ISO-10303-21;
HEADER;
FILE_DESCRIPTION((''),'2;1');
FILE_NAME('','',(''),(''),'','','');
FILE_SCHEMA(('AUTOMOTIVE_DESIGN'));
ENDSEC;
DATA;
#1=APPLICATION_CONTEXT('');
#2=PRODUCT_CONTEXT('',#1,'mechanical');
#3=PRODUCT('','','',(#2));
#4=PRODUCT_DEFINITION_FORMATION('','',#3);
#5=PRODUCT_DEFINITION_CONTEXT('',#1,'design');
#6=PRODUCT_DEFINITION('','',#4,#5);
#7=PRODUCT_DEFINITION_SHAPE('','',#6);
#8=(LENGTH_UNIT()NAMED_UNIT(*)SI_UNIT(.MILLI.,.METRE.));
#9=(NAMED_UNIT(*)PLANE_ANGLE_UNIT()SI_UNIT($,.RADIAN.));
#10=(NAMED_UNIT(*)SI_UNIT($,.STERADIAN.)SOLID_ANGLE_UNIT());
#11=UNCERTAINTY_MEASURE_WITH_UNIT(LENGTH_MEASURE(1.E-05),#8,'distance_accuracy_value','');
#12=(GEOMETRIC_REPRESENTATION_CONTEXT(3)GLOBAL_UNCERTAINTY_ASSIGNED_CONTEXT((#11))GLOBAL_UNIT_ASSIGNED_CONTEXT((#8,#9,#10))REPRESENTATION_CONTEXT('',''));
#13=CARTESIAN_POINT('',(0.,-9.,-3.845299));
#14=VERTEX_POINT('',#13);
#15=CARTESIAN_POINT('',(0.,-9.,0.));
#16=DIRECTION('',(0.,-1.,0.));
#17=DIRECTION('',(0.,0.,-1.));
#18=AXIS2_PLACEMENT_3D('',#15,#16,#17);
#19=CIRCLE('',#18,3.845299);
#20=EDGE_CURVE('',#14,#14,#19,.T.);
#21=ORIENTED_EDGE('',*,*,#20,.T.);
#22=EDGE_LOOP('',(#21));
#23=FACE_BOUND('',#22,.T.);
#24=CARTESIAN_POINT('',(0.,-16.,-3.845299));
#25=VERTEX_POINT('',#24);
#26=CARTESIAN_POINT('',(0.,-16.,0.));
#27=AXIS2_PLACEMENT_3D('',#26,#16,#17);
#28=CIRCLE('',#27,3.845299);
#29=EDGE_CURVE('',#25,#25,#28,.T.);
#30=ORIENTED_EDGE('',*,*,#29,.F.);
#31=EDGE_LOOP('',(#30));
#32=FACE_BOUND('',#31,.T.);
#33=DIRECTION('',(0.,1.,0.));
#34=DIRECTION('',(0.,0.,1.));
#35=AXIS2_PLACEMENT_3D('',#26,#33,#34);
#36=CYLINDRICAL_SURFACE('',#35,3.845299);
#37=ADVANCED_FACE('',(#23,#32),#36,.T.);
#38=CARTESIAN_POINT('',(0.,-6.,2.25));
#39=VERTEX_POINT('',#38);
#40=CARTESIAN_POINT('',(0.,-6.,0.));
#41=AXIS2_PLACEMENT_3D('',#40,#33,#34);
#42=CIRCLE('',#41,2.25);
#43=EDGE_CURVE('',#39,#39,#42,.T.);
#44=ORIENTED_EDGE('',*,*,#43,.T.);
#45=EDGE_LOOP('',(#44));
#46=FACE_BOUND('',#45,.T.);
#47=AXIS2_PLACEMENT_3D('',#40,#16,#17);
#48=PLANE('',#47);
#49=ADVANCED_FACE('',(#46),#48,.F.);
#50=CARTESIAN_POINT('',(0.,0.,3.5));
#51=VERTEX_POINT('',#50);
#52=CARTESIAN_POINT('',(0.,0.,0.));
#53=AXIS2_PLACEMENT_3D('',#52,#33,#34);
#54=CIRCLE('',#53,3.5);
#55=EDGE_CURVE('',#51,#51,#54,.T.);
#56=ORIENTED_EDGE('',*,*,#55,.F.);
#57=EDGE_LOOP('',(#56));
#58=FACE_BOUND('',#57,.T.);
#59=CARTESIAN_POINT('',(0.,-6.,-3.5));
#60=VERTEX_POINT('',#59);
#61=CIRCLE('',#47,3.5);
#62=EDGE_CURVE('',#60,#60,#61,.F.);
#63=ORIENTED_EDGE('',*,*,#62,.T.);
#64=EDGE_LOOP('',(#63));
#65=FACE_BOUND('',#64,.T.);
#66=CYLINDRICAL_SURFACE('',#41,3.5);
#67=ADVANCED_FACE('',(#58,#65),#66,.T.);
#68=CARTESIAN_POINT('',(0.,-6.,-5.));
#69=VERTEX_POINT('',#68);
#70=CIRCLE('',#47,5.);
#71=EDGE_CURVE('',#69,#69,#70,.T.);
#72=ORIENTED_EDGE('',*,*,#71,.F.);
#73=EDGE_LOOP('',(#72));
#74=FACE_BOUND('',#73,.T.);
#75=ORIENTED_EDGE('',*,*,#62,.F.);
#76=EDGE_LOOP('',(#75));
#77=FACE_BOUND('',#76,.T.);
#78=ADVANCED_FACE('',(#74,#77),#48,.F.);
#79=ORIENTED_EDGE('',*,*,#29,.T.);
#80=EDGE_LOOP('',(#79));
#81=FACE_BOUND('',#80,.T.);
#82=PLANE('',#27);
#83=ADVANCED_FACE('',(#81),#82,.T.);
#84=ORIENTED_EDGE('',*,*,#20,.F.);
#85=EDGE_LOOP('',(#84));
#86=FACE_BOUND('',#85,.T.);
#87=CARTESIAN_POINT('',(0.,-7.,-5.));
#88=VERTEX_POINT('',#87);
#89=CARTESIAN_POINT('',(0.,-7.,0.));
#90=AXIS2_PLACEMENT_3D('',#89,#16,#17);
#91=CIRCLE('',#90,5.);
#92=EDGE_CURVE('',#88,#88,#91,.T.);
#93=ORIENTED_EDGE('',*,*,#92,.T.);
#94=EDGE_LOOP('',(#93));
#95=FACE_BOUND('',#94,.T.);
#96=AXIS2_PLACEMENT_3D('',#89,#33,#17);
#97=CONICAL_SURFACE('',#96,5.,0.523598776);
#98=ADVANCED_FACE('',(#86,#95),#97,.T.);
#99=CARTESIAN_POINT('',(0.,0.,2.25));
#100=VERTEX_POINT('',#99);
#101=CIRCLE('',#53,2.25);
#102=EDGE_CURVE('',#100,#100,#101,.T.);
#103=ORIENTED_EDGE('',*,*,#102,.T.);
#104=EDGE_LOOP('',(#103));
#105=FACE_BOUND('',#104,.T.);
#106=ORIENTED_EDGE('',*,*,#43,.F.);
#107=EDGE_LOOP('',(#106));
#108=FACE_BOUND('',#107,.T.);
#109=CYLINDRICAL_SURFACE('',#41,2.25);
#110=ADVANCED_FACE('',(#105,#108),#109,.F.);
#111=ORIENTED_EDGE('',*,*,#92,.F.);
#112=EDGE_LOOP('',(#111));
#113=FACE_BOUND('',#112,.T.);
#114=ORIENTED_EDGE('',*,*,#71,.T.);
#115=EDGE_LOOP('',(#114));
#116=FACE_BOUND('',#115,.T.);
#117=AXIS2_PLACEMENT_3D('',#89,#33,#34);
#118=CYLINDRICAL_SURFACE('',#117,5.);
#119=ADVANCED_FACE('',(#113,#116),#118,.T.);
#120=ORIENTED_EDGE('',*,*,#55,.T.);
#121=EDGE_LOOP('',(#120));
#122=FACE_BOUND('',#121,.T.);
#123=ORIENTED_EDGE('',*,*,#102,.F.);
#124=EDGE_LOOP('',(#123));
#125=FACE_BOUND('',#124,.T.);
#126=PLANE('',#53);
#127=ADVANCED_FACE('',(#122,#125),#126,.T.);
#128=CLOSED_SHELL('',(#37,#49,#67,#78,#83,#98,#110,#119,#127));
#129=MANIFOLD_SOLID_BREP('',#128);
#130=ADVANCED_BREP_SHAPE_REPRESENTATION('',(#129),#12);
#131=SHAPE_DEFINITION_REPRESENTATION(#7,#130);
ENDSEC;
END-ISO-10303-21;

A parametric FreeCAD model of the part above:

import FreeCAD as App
import Part
import Sketcher
from FreeCAD import Vector

doc = App.newDocument("Part")
body = doc.addObject("PartDesign::Body", "Body")

sketch1 = body.newObject("Sketcher::SketchObject", "Sketch")
sketch1.AttachmentSupport = (doc.getObject("XZ_Plane"), [""])
sketch1.MapMode = "FlatFace"
sketch1.addGeometry([
    Part.Circle(Vector(0, 0, 0), Vector(0, 0, 1), 3.5),
    Part.Circle(Vector(0, 0, 0), Vector(0, 0, 1), 2.2),
], False)
sketch1.addConstraint([
    Sketcher.Constraint("Coincident", 0, 3, -1, 1),
    Sketcher.Constraint("Coincident", 1, 3, -1, 1),
    Sketcher.Constraint("Diameter", 0, 7.0),
    Sketcher.Constraint("Diameter", 1, 4.5),
])
pad1 = body.newObject("PartDesign::Pad", "Pad")
pad1.Profile = sketch1
pad1.Length = 6

sketch2 = body.newObject("Sketcher::SketchObject", "Sketch001")
sketch2.AttachmentSupport = (doc.getObject("XZ_Plane"), [""])
sketch2.MapMode = "FlatFace"
sketch2.AttachmentOffset = App.Placement(Vector(0, 0, 6), App.Rotation())
sketch2.addGeometry(Part.Circle(Vector(0, 0, 0), Vector(0, 0, 1), 5), False)
sketch2.addConstraint([
    Sketcher.Constraint("Coincident", 0, 3, -1, 1),
    Sketcher.Constraint("Diameter", 0, 10.0),
])
pad2 = body.newObject("PartDesign::Pad", "Pad001")
pad2.Profile = sketch2
pad2.Length = 1

sketch3 = body.newObject("Sketcher::SketchObject", "Sketch002")
sketch3.AttachmentSupport = (doc.getObject("XZ_Plane"), [""])
sketch3.MapMode = "FlatFace"
sketch3.AttachmentOffset = App.Placement(Vector(0, 0, 7), App.Rotation())
sketch3.addGeometry(Part.Circle(Vector(0, 0, 0), Vector(0, 0, 1), 5), False)
sketch3.addConstraint([
    Sketcher.Constraint("Coincident", 0, 3, -1, 1),
    Sketcher.Constraint("Diameter", 0, 10.0),
])
pad3 = body.newObject("PartDesign::Pad", "Pad002")
pad3.Profile = sketch3
pad3.Length = 2
pad3.TaperAngle = -30

sketch4 = body.newObject("Sketcher::SketchObject", "Sketch003")
sketch4.AttachmentSupport = (doc.getObject("XZ_Plane"), [""])
sketch4.MapMode = "FlatFace"
sketch4.AttachmentOffset = App.Placement(Vector(0, 0, 9), App.Rotation())
sketch4.addGeometry(Part.Circle(Vector(0, 0, 0), Vector(0, 0, 1), 3.8), False)
sketch4.addConstraint([
    Sketcher.Constraint("Coincident", 0, 3, -1, 1),
    Sketcher.Constraint("Diameter", 0, 7.690599),
])
pad4 = body.newObject("PartDesign::Pad", "Pad003")
pad4.Profile = sketch4
pad4.Length = 7

doc.recompute()
